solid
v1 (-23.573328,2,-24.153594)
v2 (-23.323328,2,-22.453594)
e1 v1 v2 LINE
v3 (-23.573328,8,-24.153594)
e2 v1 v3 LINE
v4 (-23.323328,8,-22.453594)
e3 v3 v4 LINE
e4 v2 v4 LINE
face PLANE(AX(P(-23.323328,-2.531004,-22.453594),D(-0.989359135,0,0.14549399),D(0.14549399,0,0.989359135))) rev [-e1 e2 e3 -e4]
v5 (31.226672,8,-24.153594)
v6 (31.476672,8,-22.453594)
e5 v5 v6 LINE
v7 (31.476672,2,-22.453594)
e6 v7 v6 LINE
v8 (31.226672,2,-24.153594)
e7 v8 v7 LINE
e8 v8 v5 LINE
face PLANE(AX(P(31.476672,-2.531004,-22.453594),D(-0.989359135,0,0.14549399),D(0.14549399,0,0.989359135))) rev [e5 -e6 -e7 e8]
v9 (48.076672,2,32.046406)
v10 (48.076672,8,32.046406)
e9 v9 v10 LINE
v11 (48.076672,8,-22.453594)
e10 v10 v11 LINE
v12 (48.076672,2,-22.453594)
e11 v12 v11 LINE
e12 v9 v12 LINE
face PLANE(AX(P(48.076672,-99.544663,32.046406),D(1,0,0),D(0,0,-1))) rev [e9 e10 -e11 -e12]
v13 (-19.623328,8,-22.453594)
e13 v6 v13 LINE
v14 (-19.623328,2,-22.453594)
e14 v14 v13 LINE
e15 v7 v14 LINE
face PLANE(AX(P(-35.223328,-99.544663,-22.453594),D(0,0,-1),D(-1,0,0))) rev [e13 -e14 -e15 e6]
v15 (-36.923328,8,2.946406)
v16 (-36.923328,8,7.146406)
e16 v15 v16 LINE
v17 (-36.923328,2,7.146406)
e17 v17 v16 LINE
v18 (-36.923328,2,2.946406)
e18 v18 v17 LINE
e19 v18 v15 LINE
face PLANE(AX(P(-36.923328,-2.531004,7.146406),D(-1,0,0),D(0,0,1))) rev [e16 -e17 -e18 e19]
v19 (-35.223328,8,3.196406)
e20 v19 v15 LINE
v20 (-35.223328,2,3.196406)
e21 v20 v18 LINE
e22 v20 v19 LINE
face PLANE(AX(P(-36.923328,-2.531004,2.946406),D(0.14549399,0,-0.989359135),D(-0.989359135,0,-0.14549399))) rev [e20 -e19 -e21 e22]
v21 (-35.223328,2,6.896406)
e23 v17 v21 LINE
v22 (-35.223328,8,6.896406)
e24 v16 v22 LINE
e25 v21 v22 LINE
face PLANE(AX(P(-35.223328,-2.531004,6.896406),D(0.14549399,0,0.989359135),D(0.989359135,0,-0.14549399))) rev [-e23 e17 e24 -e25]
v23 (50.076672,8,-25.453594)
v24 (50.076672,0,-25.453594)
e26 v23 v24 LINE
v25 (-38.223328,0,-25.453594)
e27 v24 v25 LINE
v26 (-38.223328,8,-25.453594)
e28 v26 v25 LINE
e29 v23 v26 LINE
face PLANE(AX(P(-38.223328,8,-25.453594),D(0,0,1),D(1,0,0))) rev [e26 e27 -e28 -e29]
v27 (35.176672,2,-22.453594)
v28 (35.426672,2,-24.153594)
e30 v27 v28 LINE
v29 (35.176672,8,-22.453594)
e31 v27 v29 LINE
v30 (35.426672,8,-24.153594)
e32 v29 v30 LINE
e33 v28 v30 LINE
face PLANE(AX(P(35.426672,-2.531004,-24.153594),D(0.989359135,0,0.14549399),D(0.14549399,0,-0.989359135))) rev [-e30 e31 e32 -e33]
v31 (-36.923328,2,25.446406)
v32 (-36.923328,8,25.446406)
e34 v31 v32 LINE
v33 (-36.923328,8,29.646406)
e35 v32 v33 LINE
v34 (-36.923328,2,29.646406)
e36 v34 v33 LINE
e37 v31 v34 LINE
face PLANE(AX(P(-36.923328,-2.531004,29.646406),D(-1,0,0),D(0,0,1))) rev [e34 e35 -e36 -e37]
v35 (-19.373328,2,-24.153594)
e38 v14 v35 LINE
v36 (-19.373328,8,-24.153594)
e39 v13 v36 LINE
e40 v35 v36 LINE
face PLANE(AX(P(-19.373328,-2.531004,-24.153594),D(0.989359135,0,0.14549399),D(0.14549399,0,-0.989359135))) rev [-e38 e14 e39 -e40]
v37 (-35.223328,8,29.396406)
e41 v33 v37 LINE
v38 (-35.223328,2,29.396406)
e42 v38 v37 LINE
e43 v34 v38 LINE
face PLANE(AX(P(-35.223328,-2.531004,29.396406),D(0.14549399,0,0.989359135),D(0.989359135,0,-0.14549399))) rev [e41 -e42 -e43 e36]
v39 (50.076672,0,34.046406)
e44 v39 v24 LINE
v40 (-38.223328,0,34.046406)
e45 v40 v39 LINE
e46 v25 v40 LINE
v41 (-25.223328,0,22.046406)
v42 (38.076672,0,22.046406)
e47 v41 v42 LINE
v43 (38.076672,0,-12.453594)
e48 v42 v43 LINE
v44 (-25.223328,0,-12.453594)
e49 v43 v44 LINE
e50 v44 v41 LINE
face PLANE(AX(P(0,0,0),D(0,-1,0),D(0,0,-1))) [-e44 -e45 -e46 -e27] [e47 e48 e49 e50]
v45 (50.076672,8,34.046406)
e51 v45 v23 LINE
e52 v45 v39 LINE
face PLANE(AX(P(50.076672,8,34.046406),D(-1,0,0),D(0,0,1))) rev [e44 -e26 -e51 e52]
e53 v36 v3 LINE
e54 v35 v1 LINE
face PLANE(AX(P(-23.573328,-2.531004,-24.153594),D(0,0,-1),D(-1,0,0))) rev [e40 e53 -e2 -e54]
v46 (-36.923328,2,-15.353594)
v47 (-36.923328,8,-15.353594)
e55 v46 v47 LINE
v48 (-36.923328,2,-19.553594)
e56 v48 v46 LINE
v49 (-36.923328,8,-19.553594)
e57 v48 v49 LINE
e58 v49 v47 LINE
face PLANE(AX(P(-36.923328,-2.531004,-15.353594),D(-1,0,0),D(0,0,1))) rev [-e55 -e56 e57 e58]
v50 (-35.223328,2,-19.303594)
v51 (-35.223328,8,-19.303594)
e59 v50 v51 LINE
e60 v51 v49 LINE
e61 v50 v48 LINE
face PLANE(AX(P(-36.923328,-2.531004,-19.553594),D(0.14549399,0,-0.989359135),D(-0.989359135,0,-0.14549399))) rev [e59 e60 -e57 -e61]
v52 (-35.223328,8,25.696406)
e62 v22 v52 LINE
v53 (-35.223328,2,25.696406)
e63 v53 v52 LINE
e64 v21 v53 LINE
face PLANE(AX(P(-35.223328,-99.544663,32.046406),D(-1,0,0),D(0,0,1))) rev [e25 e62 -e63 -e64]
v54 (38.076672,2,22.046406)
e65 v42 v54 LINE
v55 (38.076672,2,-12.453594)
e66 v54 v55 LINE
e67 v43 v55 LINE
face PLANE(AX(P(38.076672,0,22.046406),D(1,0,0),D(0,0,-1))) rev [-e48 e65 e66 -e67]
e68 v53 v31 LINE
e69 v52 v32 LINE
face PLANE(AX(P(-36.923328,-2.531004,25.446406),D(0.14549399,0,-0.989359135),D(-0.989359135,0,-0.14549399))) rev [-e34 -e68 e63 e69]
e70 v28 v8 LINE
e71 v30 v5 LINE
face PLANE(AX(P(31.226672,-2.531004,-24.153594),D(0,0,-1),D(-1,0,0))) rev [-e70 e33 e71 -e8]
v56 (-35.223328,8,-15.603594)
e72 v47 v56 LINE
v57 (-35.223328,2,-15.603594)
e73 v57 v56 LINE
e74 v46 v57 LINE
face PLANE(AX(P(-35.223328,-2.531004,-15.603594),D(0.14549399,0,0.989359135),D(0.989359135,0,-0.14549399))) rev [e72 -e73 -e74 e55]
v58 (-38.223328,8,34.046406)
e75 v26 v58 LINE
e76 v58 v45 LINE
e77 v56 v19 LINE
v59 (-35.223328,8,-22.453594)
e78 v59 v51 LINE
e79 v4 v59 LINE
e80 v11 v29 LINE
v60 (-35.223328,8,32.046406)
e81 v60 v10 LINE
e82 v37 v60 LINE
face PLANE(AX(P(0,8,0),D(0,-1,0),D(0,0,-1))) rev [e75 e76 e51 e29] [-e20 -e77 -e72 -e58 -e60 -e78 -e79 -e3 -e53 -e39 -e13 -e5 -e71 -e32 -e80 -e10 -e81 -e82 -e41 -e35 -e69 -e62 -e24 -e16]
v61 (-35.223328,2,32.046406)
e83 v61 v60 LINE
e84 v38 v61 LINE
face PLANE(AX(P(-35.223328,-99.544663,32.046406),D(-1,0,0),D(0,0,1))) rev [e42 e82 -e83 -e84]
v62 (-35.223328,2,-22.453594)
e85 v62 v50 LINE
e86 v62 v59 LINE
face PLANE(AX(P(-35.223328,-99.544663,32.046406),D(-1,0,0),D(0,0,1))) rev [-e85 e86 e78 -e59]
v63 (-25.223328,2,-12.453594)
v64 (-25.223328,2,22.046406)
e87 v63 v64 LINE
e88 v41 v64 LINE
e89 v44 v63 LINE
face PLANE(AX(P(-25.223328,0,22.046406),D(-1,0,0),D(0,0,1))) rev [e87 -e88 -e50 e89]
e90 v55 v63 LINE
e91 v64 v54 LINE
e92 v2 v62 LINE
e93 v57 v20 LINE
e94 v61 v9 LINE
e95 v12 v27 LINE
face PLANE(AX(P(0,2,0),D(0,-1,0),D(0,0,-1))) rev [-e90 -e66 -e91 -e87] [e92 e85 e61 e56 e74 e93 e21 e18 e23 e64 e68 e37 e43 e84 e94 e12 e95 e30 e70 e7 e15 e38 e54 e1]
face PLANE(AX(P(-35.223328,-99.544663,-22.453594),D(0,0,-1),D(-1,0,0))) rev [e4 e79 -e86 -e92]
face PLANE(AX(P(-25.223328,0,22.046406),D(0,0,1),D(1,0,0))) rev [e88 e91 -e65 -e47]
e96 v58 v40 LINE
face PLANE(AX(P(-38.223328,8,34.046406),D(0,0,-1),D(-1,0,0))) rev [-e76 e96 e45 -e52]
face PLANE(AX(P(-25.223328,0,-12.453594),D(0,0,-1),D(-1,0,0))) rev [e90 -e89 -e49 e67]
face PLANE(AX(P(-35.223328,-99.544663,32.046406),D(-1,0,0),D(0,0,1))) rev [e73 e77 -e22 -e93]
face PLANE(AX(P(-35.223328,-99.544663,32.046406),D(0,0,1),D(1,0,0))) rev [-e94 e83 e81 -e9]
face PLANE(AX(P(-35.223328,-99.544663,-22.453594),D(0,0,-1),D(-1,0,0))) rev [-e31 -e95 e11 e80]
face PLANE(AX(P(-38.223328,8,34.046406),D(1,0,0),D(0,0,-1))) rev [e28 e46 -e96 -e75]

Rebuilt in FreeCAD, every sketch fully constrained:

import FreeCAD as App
import Part
import Sketcher


def add_polygon(sketch, points):
    """Adds a closed chain of lines whose ends are joined by coincident constraints."""
    first, n = sketch.GeometryCount, len(points)
    for a, b in zip(points, points[1:] + points[:1]):
        sketch.addGeometry(Part.LineSegment(App.Vector(*a, 0), App.Vector(*b, 0)), False)
    for i in range(n):
        sketch.addConstraint(Sketcher.Constraint("Coincident", first + i, 2, first + (i + 1) % n, 1))

doc = App.newDocument("Part")
body = doc.addObject("PartDesign::Body", "Body")

# Sketch on XZ plane
sketch1 = body.newObject("Sketcher::SketchObject", "Sketch")
sketch1.AttachmentSupport = (doc.getObject("XZ_Plane"), [""])
sketch1.MapMode = "FlatFace"
add_polygon(sketch1, [(-38, -25), (-38, 34), (50, 34), (50, -25)])  # lines 0-3
sketch1.addConstraint([
    Sketcher.Constraint("Vertical", 0),
    Sketcher.Constraint("Horizontal", 1),
    Sketcher.Constraint("Vertical", 2),
    Sketcher.Constraint("Horizontal", 3),
    Sketcher.Constraint("DistanceX", 1, 1, 1, 2, 88.3),
    Sketcher.Constraint("DistanceY", 0, 1, 0, 2, 59.5),
    Sketcher.Constraint("DistanceX", 0, 2, -1, 1, 38.223328),
    Sketcher.Constraint("DistanceY", -1, 1, 0, 2, 34.046406),
])
pad1 = body.newObject("PartDesign::Pad", "Pad")
pad1.Profile = sketch1
pad1.Length = 8
pad1.Reversed = True

# Sketch on XZ plane
sketch2 = body.newObject("Sketcher::SketchObject", "Sketch001")
sketch2.AttachmentSupport = (doc.getObject("XZ_Plane"), [""])
sketch2.MapMode = "FlatFace"
sketch2.AttachmentOffset = App.Placement(App.Vector(0, 0, -8), App.Rotation())
add_polygon(sketch2, [(-35, -22), (-35, 32), (48, 32), (48, -22)])  # lines 0-3
sketch2.addConstraint([
    Sketcher.Constraint("Vertical", 0),
    Sketcher.Constraint("Horizontal", 1),
    Sketcher.Constraint("Vertical", 2),
    Sketcher.Constraint("Horizontal", 3),
    Sketcher.Constraint("DistanceX", 1, 1, 1, 2, 83.3),
    Sketcher.Constraint("DistanceY", 0, 1, 0, 2, 54.5),
    Sketcher.Constraint("DistanceX", 0, 2, -1, 1, 35.223328),
    Sketcher.Constraint("DistanceY", -1, 1, 0, 2, 32.046406),
])
pocket1 = body.newObject("PartDesign::Pocket", "Pocket")
pocket1.Profile = sketch2
pocket1.Length = 6
pocket1.Reversed = True

# Sketch on XZ plane
sketch3 = body.newObject("Sketcher::SketchObject", "Sketch002")
sketch3.AttachmentSupport = (doc.getObject("XZ_Plane"), [""])
sketch3.MapMode = "FlatFace"
sketch3.AttachmentOffset = App.Placement(App.Vector(0, 0, -8), App.Rotation())
add_polygon(sketch3, [(-36.9, 29.6), (-35.2, 29.4), (-35.2, 25.7), (-36.9, 25.4)])  # lines 0-3
add_polygon(sketch3, [(-36.9, 7.1), (-35.2, 6.9), (-35.2, 3.2), (-36.9, 2.9)])  # lines 4-7
add_polygon(sketch3, [(-36.9, -15.4), (-35.2, -15.6), (-35.2, -19.3), (-36.9, -19.6)])  # lines 8-11
add_polygon(sketch3, [(31.5, -22.5), (35.2, -22.5), (35.4, -24.2), (31.2, -24.2)])  # lines 12-15
add_polygon(sketch3, [(-23.6, -24.2), (-23.3, -22.5), (-19.6, -22.5), (-19.4, -24.2)])  # lines 16-19
sketch3.addConstraint([
    Sketcher.Constraint("Vertical", 1),
    Sketcher.Constraint("Vertical", 3),
    Sketcher.Constraint("Vertical", 5),
    Sketcher.Constraint("Vertical", 7),
    Sketcher.Constraint("Vertical", 9),
    Sketcher.Constraint("Vertical", 11),
    Sketcher.Constraint("Horizontal", 12),
    Sketcher.Constraint("Horizontal", 14),
    Sketcher.Constraint("Horizontal", 17),
    Sketcher.Constraint("Horizontal", 19),
    Sketcher.Constraint("Parallel", 0, 4),
    Sketcher.Constraint("Parallel", 2, 6),
    Sketcher.Constraint("Parallel", 4, 8),
    Sketcher.Constraint("Parallel", 6, 10),
    Sketcher.Constraint("Perpendicular", 10, 13),
    Sketcher.Constraint("Perpendicular", 8, 15),
    Sketcher.Constraint("Parallel", 15, 16),
    Sketcher.Constraint("Parallel", 13, 18),
    Sketcher.Constraint("Horizontal", 15, 2, 16, 2),
    Sketcher.Constraint("Horizontal", 14, 2, 18, 2),
    Sketcher.Constraint("Vertical", 1, 2, 4, 2),
    Sketcher.Constraint("Vertical", 3, 2, 6, 2),
    Sketcher.Constraint("Vertical", 5, 2, 8, 2),
    Sketcher.Constraint("Vertical", 7, 2, 10, 2),
    Sketcher.Constraint("Equal", 12, 17),
    Sketcher.Constraint("Equal", 17, 1),
    Sketcher.Constraint("Equal", 19, 3),
    Sketcher.Constraint("Equal", 1, 5),
    Sketcher.Constraint("Equal", 5, 9),
    Sketcher.Constraint("Equal", 0, 2),
    Sketcher.Constraint("DistanceX", 12, 1, 12, 2, 3.7),
    Sketcher.Constraint("DistanceX", 14, 2, 14, 1, 4.2),
    Sketcher.Constraint("DistanceX", 2, 2, 1, 2, 1.7),
    Sketcher.Constraint("DistanceY", 4, 2, 1, 2, 18.8),
    Sketcher.Constraint("DistanceY", 8, 2, 5, 2, 18.8),
    Sketcher.Constraint("DistanceX", 9, 2, 12, 2, 70.4),
    Sketcher.Constraint("DistanceY", 12, 2, 10, 2, 2.9),
    Sketcher.Constraint("DistanceX", 9, 2, 16, 2, 11.9),
    Sketcher.Constraint("DistanceX", 0, 2, -1, 1, 35.223328),
    Sketcher.Constraint("DistanceY", -1, 1, 0, 2, 29.396406),
])
pocket2 = body.newObject("PartDesign::Pocket", "Pocket001")
pocket2.Profile = sketch3
pocket2.Length = 6
pocket2.Reversed = True

# Sketch on XZ plane
sketch4 = body.newObject("Sketcher::SketchObject", "Sketch003")
sketch4.AttachmentSupport = (doc.getObject("XZ_Plane"), [""])
sketch4.MapMode = "FlatFace"
sketch4.AttachmentOffset = App.Placement(App.Vector(0, 0, -2), App.Rotation())
add_polygon(sketch4, [(-25, -12), (-25, 22), (38, 22), (38, -12)])  # lines 0-3
sketch4.addConstraint([
    Sketcher.Constraint("Vertical", 0),
    Sketcher.Constraint("Horizontal", 1),
    Sketcher.Constraint("Vertical", 2),
    Sketcher.Constraint("Horizontal", 3),
    Sketcher.Constraint("DistanceX", 1, 1, 1, 2, 63.3),
    Sketcher.Constraint("DistanceY", 0, 1, 0, 2, 34.5),
    Sketcher.Constraint("DistanceX", 0, 2, -1, 1, 25.223328),
    Sketcher.Constraint("DistanceY", -1, 1, 0, 2, 22.046406),
])
pocket3 = body.newObject("PartDesign::Pocket", "Pocket002")
pocket3.Profile = sketch4
pocket3.Type = "ThroughAll"
pocket3.Reversed = True

doc.recompute()
